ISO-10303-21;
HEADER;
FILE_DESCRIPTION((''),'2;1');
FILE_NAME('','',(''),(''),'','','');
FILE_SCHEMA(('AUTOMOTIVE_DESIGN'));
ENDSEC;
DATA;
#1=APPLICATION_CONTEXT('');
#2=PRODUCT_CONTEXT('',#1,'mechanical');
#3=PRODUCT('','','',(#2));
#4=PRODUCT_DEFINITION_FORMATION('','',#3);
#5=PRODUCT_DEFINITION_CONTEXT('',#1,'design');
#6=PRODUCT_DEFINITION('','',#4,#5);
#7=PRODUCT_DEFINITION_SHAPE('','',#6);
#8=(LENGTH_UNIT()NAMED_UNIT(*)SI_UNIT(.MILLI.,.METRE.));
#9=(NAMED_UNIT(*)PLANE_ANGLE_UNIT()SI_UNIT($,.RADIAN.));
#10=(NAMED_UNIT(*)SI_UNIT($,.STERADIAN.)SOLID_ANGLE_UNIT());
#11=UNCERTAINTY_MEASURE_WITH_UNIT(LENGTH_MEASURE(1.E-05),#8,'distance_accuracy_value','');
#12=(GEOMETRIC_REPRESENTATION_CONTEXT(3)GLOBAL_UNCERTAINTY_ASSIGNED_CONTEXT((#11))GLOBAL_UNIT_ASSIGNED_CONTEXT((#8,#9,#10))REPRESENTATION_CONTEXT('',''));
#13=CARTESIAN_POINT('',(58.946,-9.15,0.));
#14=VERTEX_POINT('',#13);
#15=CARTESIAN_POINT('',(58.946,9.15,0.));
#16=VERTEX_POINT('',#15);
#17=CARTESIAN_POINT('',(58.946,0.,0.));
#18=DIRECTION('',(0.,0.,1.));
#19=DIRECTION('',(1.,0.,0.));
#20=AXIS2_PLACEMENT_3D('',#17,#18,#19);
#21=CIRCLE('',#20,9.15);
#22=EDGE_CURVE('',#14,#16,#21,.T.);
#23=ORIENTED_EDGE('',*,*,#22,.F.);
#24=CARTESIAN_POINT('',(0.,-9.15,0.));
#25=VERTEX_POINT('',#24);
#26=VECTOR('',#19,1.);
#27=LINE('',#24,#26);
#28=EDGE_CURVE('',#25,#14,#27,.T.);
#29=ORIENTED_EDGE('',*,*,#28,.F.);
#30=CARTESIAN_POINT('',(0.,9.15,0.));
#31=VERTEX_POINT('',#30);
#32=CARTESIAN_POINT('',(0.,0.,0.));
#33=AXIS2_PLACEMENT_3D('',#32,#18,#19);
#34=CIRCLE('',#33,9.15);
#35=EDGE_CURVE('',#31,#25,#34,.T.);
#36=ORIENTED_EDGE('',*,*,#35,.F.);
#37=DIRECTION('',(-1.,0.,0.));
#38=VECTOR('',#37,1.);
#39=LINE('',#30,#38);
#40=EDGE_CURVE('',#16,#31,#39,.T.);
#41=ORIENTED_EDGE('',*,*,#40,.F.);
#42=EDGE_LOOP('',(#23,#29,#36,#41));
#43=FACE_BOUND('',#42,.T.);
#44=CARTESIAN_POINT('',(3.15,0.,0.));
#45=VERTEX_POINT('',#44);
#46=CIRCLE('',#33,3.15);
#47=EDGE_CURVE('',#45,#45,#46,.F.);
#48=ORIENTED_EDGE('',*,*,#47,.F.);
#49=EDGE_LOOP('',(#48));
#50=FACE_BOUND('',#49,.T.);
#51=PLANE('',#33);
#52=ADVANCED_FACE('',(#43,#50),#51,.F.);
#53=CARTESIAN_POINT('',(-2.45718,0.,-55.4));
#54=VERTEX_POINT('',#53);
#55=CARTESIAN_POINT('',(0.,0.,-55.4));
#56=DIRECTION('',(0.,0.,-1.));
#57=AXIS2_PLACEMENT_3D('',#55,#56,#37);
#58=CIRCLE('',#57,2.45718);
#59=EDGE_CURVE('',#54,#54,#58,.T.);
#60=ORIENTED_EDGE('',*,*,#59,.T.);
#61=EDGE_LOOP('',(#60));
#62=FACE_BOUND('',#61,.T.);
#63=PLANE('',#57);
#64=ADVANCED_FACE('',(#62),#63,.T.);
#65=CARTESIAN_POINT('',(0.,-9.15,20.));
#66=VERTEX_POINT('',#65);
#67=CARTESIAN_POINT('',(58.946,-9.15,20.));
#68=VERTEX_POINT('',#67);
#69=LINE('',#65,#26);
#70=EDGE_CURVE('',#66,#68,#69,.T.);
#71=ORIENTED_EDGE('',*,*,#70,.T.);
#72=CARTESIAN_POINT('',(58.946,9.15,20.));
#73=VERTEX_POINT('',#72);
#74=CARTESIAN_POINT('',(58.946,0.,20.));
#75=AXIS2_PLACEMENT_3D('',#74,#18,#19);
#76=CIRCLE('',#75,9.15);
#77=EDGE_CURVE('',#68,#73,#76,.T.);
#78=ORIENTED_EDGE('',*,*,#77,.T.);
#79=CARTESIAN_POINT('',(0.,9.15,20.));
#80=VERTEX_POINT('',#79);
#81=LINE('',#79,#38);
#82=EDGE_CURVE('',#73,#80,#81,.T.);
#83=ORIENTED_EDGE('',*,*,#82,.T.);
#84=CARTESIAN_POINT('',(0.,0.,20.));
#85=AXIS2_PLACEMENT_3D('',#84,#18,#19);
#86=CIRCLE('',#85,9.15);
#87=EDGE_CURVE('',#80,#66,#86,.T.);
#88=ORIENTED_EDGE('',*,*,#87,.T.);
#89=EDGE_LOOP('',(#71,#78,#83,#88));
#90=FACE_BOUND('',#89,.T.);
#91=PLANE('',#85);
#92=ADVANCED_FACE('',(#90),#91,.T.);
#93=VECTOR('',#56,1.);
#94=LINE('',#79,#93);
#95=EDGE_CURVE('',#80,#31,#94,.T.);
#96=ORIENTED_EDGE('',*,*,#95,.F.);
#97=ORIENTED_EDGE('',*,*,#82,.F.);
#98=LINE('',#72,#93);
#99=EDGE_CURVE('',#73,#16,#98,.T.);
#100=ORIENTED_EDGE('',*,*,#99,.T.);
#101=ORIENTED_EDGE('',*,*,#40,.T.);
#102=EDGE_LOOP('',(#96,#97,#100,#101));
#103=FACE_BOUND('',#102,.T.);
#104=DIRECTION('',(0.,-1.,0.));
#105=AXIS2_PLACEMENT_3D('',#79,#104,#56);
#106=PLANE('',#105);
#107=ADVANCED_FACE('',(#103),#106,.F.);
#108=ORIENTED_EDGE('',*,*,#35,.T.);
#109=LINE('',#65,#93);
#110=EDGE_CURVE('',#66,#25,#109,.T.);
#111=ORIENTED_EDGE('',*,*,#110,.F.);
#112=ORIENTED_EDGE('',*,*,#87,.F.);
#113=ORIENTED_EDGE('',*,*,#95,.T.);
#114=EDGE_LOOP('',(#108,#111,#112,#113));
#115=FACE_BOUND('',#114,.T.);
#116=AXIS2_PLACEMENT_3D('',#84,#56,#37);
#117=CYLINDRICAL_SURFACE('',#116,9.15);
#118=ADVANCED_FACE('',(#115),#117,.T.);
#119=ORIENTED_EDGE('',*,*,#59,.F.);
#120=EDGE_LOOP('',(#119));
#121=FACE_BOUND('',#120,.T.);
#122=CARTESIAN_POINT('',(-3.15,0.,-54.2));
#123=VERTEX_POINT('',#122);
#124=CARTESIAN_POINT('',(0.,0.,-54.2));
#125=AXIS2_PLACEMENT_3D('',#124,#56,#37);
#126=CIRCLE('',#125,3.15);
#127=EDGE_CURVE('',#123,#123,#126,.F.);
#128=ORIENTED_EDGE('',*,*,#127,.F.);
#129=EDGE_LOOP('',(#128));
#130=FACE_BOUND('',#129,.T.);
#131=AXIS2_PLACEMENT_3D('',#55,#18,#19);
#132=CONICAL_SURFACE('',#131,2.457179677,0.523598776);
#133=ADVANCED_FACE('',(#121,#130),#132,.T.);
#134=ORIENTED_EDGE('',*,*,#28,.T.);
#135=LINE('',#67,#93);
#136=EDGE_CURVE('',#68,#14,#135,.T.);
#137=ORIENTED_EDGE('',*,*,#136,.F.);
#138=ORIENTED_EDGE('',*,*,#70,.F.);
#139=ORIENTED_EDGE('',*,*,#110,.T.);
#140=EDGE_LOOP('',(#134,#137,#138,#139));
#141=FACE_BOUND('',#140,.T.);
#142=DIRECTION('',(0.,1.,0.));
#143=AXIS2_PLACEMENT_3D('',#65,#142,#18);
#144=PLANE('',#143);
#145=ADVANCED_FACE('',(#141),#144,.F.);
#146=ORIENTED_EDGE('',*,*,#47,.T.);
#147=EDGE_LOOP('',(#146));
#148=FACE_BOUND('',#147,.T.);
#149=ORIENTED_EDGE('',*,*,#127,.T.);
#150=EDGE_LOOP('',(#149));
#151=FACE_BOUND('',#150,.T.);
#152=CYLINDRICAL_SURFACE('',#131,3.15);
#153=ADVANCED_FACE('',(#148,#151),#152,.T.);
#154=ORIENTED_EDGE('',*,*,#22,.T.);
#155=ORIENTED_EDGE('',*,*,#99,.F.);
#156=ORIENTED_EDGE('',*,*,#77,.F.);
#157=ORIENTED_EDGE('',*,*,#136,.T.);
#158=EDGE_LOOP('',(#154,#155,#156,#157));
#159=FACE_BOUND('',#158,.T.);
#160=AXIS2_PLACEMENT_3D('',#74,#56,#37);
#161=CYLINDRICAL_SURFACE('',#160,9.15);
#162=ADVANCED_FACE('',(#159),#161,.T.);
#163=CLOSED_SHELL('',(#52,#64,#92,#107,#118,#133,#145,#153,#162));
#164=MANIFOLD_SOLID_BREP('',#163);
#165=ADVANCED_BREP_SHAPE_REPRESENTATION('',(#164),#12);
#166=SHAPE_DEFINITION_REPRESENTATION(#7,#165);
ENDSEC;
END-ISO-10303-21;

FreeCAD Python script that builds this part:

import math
import FreeCAD as App
import Part
import Sketcher

V = App.Vector
Q = App.Units.Quantity


def edges_at(feature, points):
    """Names of the edges that pass closest to the given points."""
    edges = feature.Shape.Edges
    near = lambda p: min(range(len(edges)), key=lambda i: edges[i].distToShape(Part.Vertex(*p))[0])
    return sorted({f"Edge{near(p) + 1}" for p in points})

doc = App.newDocument("Part")
body = doc.addObject("PartDesign::Body", "Body")

sketch1 = doc.addObject("Sketcher::SketchObject", "Sketch")
body.addObject(sketch1)
sketch1.AttachmentSupport = (doc.XY_Plane, [""])
sketch1.MapMode = "FlatFace"
sketch1.addGeometry(Part.LineSegment(V(63.919719, 2.991647, 0), V(0.577941, 7.728421, 0)), False)
sketch1.addGeometry(Part.ArcOfCircle(Part.Circle(V(0, 0, 0), V(0, 0, 1), 7.75), math.radians(85.723313), math.radians(274.276687)), False)
sketch1.addGeometry(Part.LineSegment(V(0.577941, -7.728421, 0), V(63.919719, -2.991647, 0)), False)
sketch1.addGeometry(Part.ArcOfCircle(Part.Circle(V(63.696, 0, 0), V(0, 0, 1), 3), math.radians(-85.723313), math.radians(85.723313)), False)
sketch1.addConstraint(Sketcher.Constraint("Tangent", 0, 2, 1, 1))
sketch1.addConstraint(Sketcher.Constraint("Tangent", 1, 2, 2, 1))
sketch1.addConstraint(Sketcher.Constraint("Tangent", 2, 2, 3, 1))
sketch1.addConstraint(Sketcher.Constraint("Tangent", 3, 2, 0, 1))
sketch1.addConstraint(Sketcher.Constraint("Coincident", 1, 3, -1, 1))
sketch1.addConstraint(Sketcher.Constraint("PointOnObject", 3, 3, -1))
sketch1.addConstraint(Sketcher.Constraint("Radius", 3, Q("3 mm")))
sketch1.addConstraint(Sketcher.Constraint("Radius", 1, Q("7.75 mm")))
sketch1.addConstraint(Sketcher.Constraint("DistanceX", -1, 1, 3, 3, Q("63.696 mm")))
pad1 = doc.addObject("PartDesign::Pad", "Pad")
body.addObject(pad1)
pad1.Profile = sketch1
pad1.Length = 20

sketch2 = doc.addObject("Sketcher::SketchObject", "Sketch001")
body.addObject(sketch2)
sketch2.AttachmentSupport = (doc.XY_Plane, [""])
sketch2.MapMode = "FlatFace"
sketch2.addGeometry(Part.LineSegment(V(58.946, 9.15, 0), V(0, 9.15, 0)), False)
sketch2.addGeometry(Part.ArcOfCircle(Part.Circle(V(0, 0, 0), V(0, 0, 1), 9.15), math.radians(90), math.radians(270)), False)
sketch2.addGeometry(Part.LineSegment(V(0, -9.15, 0), V(58.946, -9.15, 0)), False)
sketch2.addGeometry(Part.ArcOfCircle(Part.Circle(V(58.946, 0, 0), V(0, 0, 1), 9.15), math.radians(-90), math.radians(90)), False)
sketch2.addConstraint(Sketcher.Constraint("Tangent", 0, 2, 1, 1))
sketch2.addConstraint(Sketcher.Constraint("Tangent", 1, 2, 2, 1))
sketch2.addConstraint(Sketcher.Constraint("Tangent", 2, 2, 3, 1))
sketch2.addConstraint(Sketcher.Constraint("Tangent", 3, 2, 0, 1))
sketch2.addConstraint(Sketcher.Constraint("Horizontal", 0))
sketch2.addConstraint(Sketcher.Constraint("Horizontal", 2))
sketch2.addConstraint(Sketcher.Constraint("Coincident", 1, 3, -1, 1))
sketch2.addConstraint(Sketcher.Constraint("Radius", 1, Q("9.15 mm")))
sketch2.addConstraint(Sketcher.Constraint("DistanceX", 0, 2, 0, 1, Q("58.946 mm")))
pad2 = doc.addObject("PartDesign::Pad", "Pad001")
body.addObject(pad2)
pad2.Profile = sketch2
pad2.Length = 20

sketch3 = doc.addObject("Sketcher::SketchObject", "Sketch002")
body.addObject(sketch3)
sketch3.AttachmentSupport = (doc.XY_Plane, [""])
sketch3.MapMode = "FlatFace"
sketch3.addGeometry(Part.Circle(V(0, 0, 0), V(0, 0, 1), 3.15), False)
sketch3.addConstraint(Sketcher.Constraint("Coincident", 0, 3, -1, 1))
sketch3.addConstraint(Sketcher.Constraint("Diameter", 0, Q("6.3 mm")))
pad3 = doc.addObject("PartDesign::Pad", "Pad002")
body.addObject(pad3)
pad3.Profile = sketch3
pad3.Length = 55.4
pad3.Reversed = True
doc.recompute()

chamfer = doc.addObject("PartDesign::Chamfer", "Chamfer")
body.addObject(chamfer)
chamfer.Base = (pad3, edges_at(pad3, [(-3.15, 0, -55.4)]))
chamfer.ChamferType = "Two distances"
chamfer.Size = 1.2
chamfer.Size2 = 0.69282

doc.recompute()
